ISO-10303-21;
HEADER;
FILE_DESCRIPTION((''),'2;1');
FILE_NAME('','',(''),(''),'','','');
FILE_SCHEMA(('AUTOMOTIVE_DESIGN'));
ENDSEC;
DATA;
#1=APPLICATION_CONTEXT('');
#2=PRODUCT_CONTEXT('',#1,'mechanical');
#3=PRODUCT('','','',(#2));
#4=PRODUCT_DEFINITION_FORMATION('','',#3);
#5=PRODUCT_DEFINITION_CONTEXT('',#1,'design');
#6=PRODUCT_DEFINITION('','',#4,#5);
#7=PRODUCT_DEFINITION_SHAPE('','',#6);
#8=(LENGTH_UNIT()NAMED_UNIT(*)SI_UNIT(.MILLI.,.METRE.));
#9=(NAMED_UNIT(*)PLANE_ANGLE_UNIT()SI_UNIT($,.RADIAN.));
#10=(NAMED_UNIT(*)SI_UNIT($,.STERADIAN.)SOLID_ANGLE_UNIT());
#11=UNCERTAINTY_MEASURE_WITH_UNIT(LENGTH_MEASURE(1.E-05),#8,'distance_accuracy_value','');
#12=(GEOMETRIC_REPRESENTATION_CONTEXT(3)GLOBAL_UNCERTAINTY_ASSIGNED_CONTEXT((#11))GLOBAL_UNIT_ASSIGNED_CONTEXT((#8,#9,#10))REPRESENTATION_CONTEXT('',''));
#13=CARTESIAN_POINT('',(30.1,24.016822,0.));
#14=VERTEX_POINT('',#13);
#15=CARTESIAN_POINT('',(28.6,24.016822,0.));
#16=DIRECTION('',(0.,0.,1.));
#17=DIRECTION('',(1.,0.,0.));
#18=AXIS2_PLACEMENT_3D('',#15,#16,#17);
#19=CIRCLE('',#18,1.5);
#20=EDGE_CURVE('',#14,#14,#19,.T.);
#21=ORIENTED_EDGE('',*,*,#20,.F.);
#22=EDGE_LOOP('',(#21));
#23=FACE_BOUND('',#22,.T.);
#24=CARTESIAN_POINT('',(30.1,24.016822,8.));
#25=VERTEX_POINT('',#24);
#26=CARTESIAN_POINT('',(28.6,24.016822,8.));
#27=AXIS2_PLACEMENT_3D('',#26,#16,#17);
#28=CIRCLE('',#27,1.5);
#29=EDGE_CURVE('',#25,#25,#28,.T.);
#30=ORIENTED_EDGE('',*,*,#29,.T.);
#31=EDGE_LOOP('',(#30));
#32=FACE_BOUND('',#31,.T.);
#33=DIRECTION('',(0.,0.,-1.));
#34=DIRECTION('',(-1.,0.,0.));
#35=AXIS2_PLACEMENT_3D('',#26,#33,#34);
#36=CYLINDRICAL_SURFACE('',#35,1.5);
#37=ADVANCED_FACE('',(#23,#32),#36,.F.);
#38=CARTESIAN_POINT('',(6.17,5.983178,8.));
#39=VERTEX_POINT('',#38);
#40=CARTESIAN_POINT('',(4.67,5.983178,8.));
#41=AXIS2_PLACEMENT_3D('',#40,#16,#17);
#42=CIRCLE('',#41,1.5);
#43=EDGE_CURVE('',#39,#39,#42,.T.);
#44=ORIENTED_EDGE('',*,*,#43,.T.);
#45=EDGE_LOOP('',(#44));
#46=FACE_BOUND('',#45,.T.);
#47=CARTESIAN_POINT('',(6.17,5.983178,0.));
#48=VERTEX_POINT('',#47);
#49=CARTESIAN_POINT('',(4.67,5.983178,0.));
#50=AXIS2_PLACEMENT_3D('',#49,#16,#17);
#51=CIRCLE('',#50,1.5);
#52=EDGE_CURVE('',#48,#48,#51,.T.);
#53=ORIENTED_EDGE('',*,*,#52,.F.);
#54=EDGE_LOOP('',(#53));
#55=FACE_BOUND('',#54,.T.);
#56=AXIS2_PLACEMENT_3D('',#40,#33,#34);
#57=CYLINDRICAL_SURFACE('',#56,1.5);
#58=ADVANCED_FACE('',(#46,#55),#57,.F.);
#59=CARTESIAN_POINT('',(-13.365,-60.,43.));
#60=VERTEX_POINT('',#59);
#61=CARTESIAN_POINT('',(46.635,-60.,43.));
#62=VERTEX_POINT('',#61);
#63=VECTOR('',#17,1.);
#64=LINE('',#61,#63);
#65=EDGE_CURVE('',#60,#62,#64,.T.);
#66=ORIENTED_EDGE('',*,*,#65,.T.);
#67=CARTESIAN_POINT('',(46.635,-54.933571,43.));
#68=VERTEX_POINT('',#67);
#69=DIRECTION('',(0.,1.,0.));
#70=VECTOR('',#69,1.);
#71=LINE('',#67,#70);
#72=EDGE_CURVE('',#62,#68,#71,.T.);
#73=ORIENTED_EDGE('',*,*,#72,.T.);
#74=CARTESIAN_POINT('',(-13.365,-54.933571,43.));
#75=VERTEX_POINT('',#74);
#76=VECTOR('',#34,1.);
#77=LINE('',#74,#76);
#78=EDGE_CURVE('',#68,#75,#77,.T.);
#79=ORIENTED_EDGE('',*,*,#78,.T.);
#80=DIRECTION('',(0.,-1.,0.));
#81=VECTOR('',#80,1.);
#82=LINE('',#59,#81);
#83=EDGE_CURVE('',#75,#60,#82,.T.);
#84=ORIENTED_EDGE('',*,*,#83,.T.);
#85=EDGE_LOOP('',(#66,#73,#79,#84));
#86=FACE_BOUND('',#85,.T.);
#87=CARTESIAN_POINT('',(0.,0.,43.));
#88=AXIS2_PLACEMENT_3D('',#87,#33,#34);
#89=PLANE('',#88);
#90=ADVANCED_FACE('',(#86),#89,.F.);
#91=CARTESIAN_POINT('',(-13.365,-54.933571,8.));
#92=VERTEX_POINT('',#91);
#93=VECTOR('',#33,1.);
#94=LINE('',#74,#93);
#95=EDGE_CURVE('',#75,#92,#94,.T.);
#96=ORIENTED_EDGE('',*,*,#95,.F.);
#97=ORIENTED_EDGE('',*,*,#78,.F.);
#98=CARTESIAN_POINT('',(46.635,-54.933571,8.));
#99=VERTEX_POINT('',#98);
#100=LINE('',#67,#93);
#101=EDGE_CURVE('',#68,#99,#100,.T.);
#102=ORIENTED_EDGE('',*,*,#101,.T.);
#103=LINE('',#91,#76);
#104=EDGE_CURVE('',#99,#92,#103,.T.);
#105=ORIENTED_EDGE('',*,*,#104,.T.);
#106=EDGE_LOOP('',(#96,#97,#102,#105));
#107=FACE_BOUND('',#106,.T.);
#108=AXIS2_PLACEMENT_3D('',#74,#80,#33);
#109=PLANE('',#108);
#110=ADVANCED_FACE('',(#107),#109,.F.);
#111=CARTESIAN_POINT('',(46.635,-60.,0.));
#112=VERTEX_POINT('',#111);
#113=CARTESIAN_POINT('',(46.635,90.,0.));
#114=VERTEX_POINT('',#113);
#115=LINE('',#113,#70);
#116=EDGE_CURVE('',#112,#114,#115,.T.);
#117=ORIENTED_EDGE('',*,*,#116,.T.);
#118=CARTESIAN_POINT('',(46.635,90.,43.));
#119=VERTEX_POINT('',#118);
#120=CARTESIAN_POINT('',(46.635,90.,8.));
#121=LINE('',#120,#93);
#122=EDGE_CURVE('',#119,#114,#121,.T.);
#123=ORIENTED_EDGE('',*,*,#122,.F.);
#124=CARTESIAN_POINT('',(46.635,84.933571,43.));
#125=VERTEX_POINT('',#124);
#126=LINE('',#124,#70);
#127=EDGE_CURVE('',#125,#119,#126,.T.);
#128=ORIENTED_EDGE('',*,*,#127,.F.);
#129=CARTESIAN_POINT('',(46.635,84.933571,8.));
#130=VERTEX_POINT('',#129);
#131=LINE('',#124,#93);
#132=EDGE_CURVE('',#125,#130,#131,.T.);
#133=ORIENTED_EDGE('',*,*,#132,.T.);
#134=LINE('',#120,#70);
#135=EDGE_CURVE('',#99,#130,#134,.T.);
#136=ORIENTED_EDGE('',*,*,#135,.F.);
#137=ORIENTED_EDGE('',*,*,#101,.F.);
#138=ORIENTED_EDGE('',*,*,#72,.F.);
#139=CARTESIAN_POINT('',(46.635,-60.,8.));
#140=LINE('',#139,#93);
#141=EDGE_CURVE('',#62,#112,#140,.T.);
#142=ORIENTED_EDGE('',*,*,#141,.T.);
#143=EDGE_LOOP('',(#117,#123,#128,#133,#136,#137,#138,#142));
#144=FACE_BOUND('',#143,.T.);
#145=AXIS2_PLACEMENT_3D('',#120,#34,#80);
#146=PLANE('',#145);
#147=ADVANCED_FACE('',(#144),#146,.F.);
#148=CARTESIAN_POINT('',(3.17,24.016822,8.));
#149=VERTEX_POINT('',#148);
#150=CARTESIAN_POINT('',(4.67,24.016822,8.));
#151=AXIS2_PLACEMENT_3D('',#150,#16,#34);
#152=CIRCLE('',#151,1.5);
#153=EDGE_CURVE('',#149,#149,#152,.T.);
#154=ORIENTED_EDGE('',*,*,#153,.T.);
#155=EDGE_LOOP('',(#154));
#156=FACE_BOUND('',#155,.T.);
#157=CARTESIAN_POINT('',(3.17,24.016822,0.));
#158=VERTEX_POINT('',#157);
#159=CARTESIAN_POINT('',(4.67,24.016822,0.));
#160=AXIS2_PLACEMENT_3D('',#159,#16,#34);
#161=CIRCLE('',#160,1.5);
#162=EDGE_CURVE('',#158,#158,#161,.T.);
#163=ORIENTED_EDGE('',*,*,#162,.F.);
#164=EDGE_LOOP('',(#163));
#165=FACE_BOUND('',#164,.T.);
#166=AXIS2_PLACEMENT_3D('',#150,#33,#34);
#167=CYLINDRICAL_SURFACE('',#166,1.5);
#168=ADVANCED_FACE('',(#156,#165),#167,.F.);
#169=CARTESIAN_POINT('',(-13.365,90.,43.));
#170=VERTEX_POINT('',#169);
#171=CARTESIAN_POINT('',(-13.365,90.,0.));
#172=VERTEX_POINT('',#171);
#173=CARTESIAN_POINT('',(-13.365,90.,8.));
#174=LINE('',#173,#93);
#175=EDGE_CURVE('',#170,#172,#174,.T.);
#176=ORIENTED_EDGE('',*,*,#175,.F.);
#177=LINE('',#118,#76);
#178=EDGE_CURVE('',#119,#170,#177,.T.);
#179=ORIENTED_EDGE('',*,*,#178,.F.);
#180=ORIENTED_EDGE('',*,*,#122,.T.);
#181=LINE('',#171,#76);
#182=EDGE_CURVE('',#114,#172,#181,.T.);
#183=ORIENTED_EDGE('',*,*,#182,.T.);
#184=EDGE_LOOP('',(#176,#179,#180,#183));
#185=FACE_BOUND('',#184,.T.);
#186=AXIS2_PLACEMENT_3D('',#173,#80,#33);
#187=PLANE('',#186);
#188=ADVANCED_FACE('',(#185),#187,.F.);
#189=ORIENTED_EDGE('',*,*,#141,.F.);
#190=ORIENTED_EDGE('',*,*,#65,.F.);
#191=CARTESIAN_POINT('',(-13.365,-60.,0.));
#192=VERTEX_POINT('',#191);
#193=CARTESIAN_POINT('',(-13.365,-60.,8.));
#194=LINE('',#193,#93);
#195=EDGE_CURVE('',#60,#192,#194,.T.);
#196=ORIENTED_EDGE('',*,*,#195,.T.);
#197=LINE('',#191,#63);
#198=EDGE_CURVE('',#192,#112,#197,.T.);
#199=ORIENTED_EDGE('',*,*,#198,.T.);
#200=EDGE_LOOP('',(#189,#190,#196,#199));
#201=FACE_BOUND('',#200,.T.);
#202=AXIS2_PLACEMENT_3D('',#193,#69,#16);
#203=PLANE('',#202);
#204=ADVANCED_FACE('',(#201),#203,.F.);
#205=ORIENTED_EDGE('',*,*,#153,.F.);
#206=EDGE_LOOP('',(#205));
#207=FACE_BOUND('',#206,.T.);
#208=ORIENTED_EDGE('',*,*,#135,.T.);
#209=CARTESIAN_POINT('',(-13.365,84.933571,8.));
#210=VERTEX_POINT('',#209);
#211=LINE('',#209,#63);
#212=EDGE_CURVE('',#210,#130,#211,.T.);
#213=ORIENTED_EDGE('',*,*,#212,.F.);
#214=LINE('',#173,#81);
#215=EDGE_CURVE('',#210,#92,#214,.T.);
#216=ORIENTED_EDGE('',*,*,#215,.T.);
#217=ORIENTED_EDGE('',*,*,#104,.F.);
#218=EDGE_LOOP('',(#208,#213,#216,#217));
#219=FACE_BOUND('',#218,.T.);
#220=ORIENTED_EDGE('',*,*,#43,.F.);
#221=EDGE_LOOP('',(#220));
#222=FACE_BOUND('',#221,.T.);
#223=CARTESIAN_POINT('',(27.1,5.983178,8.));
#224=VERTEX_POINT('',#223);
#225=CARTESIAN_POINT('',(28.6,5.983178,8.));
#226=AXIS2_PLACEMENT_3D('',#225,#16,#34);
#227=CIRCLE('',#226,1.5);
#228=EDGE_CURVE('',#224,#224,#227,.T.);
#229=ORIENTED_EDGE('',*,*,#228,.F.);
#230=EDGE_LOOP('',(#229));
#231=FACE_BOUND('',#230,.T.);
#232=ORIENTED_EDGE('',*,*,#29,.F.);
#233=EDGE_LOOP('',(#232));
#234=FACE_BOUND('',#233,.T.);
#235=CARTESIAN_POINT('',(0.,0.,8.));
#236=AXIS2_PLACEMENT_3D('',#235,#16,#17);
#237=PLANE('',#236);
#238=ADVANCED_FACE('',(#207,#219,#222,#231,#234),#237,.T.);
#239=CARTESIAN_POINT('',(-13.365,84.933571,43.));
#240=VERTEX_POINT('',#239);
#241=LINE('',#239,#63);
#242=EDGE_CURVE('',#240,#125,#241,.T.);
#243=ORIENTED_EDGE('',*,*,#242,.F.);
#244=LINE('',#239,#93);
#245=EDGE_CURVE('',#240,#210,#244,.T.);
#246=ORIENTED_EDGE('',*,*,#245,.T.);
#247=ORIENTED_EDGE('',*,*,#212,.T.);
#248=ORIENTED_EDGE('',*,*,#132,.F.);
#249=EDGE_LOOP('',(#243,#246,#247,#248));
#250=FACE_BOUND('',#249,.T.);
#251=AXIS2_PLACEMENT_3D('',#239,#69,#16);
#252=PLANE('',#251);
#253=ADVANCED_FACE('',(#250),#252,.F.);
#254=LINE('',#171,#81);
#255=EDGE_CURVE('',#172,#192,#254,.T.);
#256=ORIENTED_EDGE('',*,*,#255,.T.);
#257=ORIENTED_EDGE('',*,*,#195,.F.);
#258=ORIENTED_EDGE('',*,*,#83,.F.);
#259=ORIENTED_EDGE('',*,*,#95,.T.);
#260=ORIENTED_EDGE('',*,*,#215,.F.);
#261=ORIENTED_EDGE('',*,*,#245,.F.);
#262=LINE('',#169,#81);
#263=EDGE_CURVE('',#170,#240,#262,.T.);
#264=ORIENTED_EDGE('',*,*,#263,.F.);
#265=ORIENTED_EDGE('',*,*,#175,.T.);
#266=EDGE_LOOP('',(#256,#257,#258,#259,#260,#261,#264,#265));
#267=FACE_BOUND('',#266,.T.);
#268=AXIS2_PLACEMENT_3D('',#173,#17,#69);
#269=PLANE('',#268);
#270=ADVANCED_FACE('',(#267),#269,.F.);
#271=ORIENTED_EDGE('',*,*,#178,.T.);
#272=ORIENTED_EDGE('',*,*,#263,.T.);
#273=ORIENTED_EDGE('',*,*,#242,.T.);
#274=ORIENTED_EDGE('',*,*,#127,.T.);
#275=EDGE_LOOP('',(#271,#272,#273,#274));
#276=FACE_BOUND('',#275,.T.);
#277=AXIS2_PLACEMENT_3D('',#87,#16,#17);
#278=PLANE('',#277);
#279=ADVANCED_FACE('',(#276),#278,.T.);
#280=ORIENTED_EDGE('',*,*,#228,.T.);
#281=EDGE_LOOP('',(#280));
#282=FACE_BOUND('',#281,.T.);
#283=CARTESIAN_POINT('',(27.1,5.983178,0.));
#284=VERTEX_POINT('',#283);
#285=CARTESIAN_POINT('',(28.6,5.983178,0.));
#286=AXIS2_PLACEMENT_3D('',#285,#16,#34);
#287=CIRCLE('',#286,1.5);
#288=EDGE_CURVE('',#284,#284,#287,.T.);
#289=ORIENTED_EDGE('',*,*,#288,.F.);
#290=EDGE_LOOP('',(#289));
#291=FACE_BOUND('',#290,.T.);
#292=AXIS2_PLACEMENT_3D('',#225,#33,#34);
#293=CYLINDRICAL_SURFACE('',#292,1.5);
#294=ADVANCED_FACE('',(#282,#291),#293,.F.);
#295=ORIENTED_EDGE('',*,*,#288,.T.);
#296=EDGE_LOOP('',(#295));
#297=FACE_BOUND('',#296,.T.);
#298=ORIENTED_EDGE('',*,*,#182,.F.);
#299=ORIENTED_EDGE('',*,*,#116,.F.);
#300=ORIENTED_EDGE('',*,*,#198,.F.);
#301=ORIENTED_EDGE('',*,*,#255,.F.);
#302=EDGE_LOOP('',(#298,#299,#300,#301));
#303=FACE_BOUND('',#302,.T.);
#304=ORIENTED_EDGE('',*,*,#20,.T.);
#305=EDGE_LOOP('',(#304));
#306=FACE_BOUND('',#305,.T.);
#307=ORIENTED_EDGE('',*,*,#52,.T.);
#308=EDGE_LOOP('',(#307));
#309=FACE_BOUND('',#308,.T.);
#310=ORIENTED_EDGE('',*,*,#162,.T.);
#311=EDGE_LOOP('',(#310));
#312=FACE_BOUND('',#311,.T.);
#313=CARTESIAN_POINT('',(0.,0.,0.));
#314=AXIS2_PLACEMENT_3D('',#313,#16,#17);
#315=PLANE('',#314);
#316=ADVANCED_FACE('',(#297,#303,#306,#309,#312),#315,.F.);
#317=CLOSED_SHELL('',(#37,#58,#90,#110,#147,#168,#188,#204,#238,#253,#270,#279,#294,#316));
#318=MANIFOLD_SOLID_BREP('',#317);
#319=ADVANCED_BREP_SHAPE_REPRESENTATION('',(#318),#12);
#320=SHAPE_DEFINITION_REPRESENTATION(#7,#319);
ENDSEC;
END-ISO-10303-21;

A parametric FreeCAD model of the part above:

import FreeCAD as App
import Part
import Sketcher
Q = App.Units.Quantity


def add_polygon(sketch, points):
    """Adds a closed chain of lines whose ends are joined by coincident constraints."""
    first, n = sketch.GeometryCount, len(points)
    for a, b in zip(points, points[1:] + points[:1]):
        sketch.addGeometry(Part.LineSegment(App.Vector(*a, 0), App.Vector(*b, 0)), False)
    for i in range(n):
        sketch.addConstraint(Sketcher.Constraint("Coincident", first + i, 2, first + (i + 1) % n, 1))

doc = App.newDocument("Part")
params = doc.addObject("Spreadsheet::Sheet", "Params")
for row, (alias, value) in enumerate([
    ("sketch1_diameter", "3 mm"),
    ("sketch1_width", "60 mm"),
    ("sketch1_height", "150 mm"),
    ("pad1_length", "8 mm"),
    ("sketch2_width", "60 mm"),
    ("pad2_length", "35 mm"),
], start=1):
    params.set(f"A{row}", alias)
    params.set(f"B{row}", "=" + value)
    params.setAlias(f"B{row}", alias)

body = doc.addObject("PartDesign::Body", "Body")

# Sketch on XY plane
sketch1 = doc.addObject("Sketcher::SketchObject", "Sketch")
body.addObject(sketch1)
sketch1.AttachmentSupport = (doc.XY_Plane, [""])
sketch1.MapMode = "FlatFace"
add_polygon(sketch1, [(-13.4, 90), (-13.4, -60), (46.6, -60), (46.6, 90)])  # lines 0-3
sketch1.addGeometry(Part.Circle(App.Vector(4.7, 6, 0), App.Vector(0, 0, 1), 1.5), False)  # 4
sketch1.addGeometry(Part.Circle(App.Vector(28.6, 6, 0), App.Vector(0, 0, 1), 1.5), False)  # 5
sketch1.addGeometry(Part.Circle(App.Vector(4.7, 24, 0), App.Vector(0, 0, 1), 1.5), False)  # 6
sketch1.addGeometry(Part.Circle(App.Vector(28.6, 24, 0), App.Vector(0, 0, 1), 1.5), False)  # 7
sketch1.addConstraint(Sketcher.Constraint("Vertical", 0))
sketch1.addConstraint(Sketcher.Constraint("Horizontal", 1))
sketch1.addConstraint(Sketcher.Constraint("Vertical", 2))
sketch1.addConstraint(Sketcher.Constraint("Horizontal", 3))
sketch1.addConstraint(Sketcher.Constraint("Equal", 4, 5))
sketch1.addConstraint(Sketcher.Constraint("Equal", 5, 6))
sketch1.addConstraint(Sketcher.Constraint("Equal", 6, 7))
sketch1.addConstraint(Sketcher.Constraint("Horizontal", 4, 3, 5, 3))
sketch1.addConstraint(Sketcher.Constraint("Horizontal", 6, 3, 7, 3))
sketch1.addConstraint(Sketcher.Constraint("Vertical", 4, 3, 6, 3))
sketch1.addConstraint(Sketcher.Constraint("Vertical", 5, 3, 7, 3))
sketch1.addConstraint(Sketcher.Constraint("Diameter", 4, Q("3 mm")))
sketch1.addConstraint(Sketcher.Constraint("DistanceX", 1, 1, 1, 2, Q("60 mm")))
sketch1.addConstraint(Sketcher.Constraint("DistanceY", 0, 2, 0, 1, Q("150 mm")))
sketch1.addConstraint(Sketcher.Constraint("DistanceY", 0, 2, -1, 1, Q("60 mm")))
sketch1.addConstraint(Sketcher.Constraint("DistanceX", -1, 1, 5, 3, Q("28.6 mm")))
sketch1.addConstraint(Sketcher.Constraint("DistanceX", -1, 1, 4, 3, Q("4.67 mm")))
sketch1.addConstraint(Sketcher.Constraint("DistanceX", 0, 2, -1, 1, Q("13.365 mm")))
sketch1.addConstraint(Sketcher.Constraint("DistanceY", -1, 1, 4, 3, Q("5.983178 mm")))
sketch1.addConstraint(Sketcher.Constraint("DistanceY", -1, 1, 6, 3, Q("24.016822 mm")))
sketch1.setExpression("Constraints[15]", "Params.sketch1_diameter")
sketch1.setExpression("Constraints[16]", "Params.sketch1_width")
sketch1.setExpression("Constraints[17]", "Params.sketch1_height")
pad1 = doc.addObject("PartDesign::Pad", "Pad")
body.addObject(pad1)
pad1.Profile = sketch1
pad1.setExpression("Length", "Params.pad1_length")

# Sketch on XY plane
sketch2 = doc.addObject("Sketcher::SketchObject", "Sketch001")
body.addObject(sketch2)
sketch2.AttachmentSupport = (doc.XY_Plane, [""])
sketch2.MapMode = "FlatFace"
sketch2.AttachmentOffset = App.Placement(App.Vector(0, 0, 8), App.Rotation())
add_polygon(sketch2, [(-13, 90), (-13, 85), (47, 85), (47, 90)])  # lines 0-3
add_polygon(sketch2, [(-13, -55), (-13, -60), (47, -60), (47, -55)])  # lines 4-7
sketch2.addConstraint(Sketcher.Constraint("Vertical", 0))
sketch2.addConstraint(Sketcher.Constraint("Horizontal", 1))
sketch2.addConstraint(Sketcher.Constraint("Vertical", 2))
sketch2.addConstraint(Sketcher.Constraint("Horizontal", 3))
sketch2.addConstraint(Sketcher.Constraint("Vertical", 4))
sketch2.addConstraint(Sketcher.Constraint("Horizontal", 5))
sketch2.addConstraint(Sketcher.Constraint("Vertical", 6))
sketch2.addConstraint(Sketcher.Constraint("Horizontal", 7))
sketch2.addConstraint(Sketcher.Constraint("Vertical", 3, 2, 4, 2))
sketch2.addConstraint(Sketcher.Constraint("Vertical", 2, 2, 5, 2))
sketch2.addConstraint(Sketcher.Constraint("Equal", 2, 4))
sketch2.addConstraint(Sketcher.Constraint("DistanceX", 1, 1, 1, 2, Q("60 mm")))
sketch2.addConstraint(Sketcher.Constraint("DistanceY", -1, 1, 2, 2, Q("90 mm")))
sketch2.addConstraint(Sketcher.Constraint("DistanceY", 4, 2, -1, 1, Q("60 mm")))
sketch2.addConstraint(Sketcher.Constraint("DistanceX", 0, 2, -1, 1, Q("13.365 mm")))
sketch2.addConstraint(Sketcher.Constraint("DistanceY", 0, 2, 0, 1, Q("5.066429 mm")))
sketch2.setExpression("Constraints[19]", "Params.sketch2_width")
pad2 = doc.addObject("PartDesign::Pad", "Pad001")
body.addObject(pad2)
pad2.Profile = sketch2
pad2.setExpression("Length", "Params.pad2_length")

doc.recompute()
